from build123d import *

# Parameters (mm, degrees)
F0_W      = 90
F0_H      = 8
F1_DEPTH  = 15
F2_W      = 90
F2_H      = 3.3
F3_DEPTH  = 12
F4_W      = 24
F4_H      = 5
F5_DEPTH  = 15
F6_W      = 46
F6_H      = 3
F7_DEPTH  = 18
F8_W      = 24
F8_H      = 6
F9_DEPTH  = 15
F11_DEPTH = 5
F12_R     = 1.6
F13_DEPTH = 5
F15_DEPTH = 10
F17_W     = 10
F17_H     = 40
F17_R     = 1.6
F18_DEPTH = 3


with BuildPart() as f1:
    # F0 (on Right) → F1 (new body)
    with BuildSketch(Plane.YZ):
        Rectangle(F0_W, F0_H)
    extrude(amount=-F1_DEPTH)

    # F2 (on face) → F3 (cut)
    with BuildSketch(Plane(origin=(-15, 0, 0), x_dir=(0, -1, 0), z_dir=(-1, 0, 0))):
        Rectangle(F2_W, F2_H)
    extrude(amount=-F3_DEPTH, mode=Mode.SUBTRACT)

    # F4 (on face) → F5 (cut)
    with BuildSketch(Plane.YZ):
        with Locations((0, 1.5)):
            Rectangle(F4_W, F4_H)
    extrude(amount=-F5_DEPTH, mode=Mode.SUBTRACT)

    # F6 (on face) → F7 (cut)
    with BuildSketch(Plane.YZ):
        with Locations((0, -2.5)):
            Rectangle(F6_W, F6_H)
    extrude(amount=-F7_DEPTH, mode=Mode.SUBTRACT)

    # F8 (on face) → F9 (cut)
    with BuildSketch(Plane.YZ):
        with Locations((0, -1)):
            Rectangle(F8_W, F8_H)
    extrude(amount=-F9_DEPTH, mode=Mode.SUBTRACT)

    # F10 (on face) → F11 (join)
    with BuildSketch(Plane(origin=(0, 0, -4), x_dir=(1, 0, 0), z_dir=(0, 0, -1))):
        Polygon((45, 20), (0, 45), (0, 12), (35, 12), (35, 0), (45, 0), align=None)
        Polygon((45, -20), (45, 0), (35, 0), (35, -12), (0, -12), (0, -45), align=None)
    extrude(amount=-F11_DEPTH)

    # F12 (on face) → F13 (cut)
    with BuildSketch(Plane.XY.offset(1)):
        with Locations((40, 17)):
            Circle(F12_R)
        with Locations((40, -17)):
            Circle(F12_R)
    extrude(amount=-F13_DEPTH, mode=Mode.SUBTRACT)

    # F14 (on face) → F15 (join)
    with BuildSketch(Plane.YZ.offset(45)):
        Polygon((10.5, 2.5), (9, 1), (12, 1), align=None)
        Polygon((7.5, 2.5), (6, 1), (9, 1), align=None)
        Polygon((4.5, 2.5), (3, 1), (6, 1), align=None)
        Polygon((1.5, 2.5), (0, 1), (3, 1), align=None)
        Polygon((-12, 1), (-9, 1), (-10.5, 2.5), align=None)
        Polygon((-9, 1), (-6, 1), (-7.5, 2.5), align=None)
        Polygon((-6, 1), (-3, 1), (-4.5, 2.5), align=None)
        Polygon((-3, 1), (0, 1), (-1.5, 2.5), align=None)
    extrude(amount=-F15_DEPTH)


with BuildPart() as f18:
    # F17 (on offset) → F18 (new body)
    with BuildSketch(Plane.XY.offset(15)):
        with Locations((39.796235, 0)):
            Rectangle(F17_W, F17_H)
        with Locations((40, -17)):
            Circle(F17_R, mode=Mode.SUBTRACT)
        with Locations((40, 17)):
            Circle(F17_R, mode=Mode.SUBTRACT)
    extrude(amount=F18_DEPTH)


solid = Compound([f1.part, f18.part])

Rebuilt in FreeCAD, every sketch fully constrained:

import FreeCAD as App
import Part
import Sketcher

doc = App.newDocument("Part")
body = doc.addObject("PartDesign::Body", "Body")
body.AllowCompound = True

sketch1 = body.newObject("Sketcher::SketchObject", "Sketch")
sketch1.AttachmentSupport = (doc.getObject("YZ_Plane"), [""])
sketch1.MapMode = "FlatFace"
sketch1.addGeometry(Part.LineSegment(App.Vector(-45, 4, 0), App.Vector(-45, -4, 0)), False)
sketch1.addGeometry(Part.LineSegment(App.Vector(-45, -4, 0), App.Vector(45, -4, 0)), False)
sketch1.addGeometry(Part.LineSegment(App.Vector(45, -4, 0), App.Vector(45, 4, 0)), False)
sketch1.addGeometry(Part.LineSegment(App.Vector(45, 4, 0), App.Vector(-45, 4, 0)), False)
sketch1.addConstraint(Sketcher.Constraint("Coincident", 0, 2, 1, 1))
sketch1.addConstraint(Sketcher.Constraint("Coincident", 1, 2, 2, 1))
sketch1.addConstraint(Sketcher.Constraint("Coincident", 2, 2, 3, 1))
sketch1.addConstraint(Sketcher.Constraint("Coincident", 3, 2, 0, 1))
sketch1.addConstraint(Sketcher.Constraint("Vertical", 0))
sketch1.addConstraint(Sketcher.Constraint("Horizontal", 1))
sketch1.addConstraint(Sketcher.Constraint("Vertical", 2))
sketch1.addConstraint(Sketcher.Constraint("Horizontal", 3))
sketch1.addConstraint(Sketcher.Constraint("Symmetric", 0, 2, 2, 2, -1, 1))
sketch1.addConstraint(Sketcher.Constraint("DistanceX", 1, 1, 1, 2, 90.0))
sketch1.addConstraint(Sketcher.Constraint("DistanceY", 0, 2, 0, 1, 8.0))
pad1 = body.newObject("PartDesign::Pad", "Pad")
pad1.Profile = sketch1
pad1.Length = 15
pad1.Reversed = True

sketch2 = body.newObject("Sketcher::SketchObject", "Sketch001")
sketch2.AttachmentSupport = (doc.getObject("YZ_Plane"), [""])
sketch2.MapMode = "FlatFace"
sketch2.AttachmentOffset = App.Placement(App.Vector(0, 0, -15), App.Rotation())
sketch2.addGeometry(Part.LineSegment(App.Vector(45, 1.6, 0), App.Vector(45, -1.6, 0)), False)
sketch2.addGeometry(Part.LineSegment(App.Vector(45, -1.6, 0), App.Vector(-45, -1.6, 0)), False)
sketch2.addGeometry(Part.LineSegment(App.Vector(-45, -1.6, 0), App.Vector(-45, 1.6, 0)), False)
sketch2.addGeometry(Part.LineSegment(App.Vector(-45, 1.6, 0), App.Vector(45, 1.6, 0)), False)
sketch2.addConstraint(Sketcher.Constraint("Coincident", 0, 2, 1, 1))
sketch2.addConstraint(Sketcher.Constraint("Coincident", 1, 2, 2, 1))
sketch2.addConstraint(Sketcher.Constraint("Coincident", 2, 2, 3, 1))
sketch2.addConstraint(Sketcher.Constraint("Coincident", 3, 2, 0, 1))
sketch2.addConstraint(Sketcher.Constraint("Vertical", 0))
sketch2.addConstraint(Sketcher.Constraint("Horizontal", 1))
sketch2.addConstraint(Sketcher.Constraint("Vertical", 2))
sketch2.addConstraint(Sketcher.Constraint("Horizontal", 3))
sketch2.addConstraint(Sketcher.Constraint("Symmetric", 0, 2, 2, 2, -1, 1))
sketch2.addConstraint(Sketcher.Constraint("DistanceX", 1, 2, 1, 1, 90.0))
sketch2.addConstraint(Sketcher.Constraint("DistanceY", 0, 2, 0, 1, 3.3))
pocket1 = body.newObject("PartDesign::Pocket", "Pocket")
pocket1.Profile = sketch2
pocket1.Length = 12
pocket1.Reversed = True

sketch3 = body.newObject("Sketcher::SketchObject", "Sketch002")
sketch3.AttachmentSupport = (doc.getObject("YZ_Plane"), [""])
sketch3.MapMode = "FlatFace"
sketch3.addGeometry(Part.LineSegment(App.Vector(-12, 4, 0), App.Vector(-12, -1, 0)), False)
sketch3.addGeometry(Part.LineSegment(App.Vector(-12, -1, 0), App.Vector(12, -1, 0)), False)
sketch3.addGeometry(Part.LineSegment(App.Vector(12, -1, 0), App.Vector(12, 4, 0)), False)
sketch3.addGeometry(Part.LineSegment(App.Vector(12, 4, 0), App.Vector(-12, 4, 0)), False)
sketch3.addConstraint(Sketcher.Constraint("Coincident", 0, 2, 1, 1))
sketch3.addConstraint(Sketcher.Constraint("Coincident", 1, 2, 2, 1))
sketch3.addConstraint(Sketcher.Constraint("Coincident", 2, 2, 3, 1))
sketch3.addConstraint(Sketcher.Constraint("Coincident", 3, 2, 0, 1))
sketch3.addConstraint(Sketcher.Constraint("Vertical", 0))
sketch3.addConstraint(Sketcher.Constraint("Horizontal", 1))
sketch3.addConstraint(Sketcher.Constraint("Vertical", 2))
sketch3.addConstraint(Sketcher.Constraint("Horizontal", 3))
sketch3.addConstraint(Sketcher.Constraint("DistanceX", 1, 1, 1, 2, 24.0))
sketch3.addConstraint(Sketcher.Constraint("DistanceY", 0, 2, 0, 1, 5.0))
sketch3.addConstraint(Sketcher.Constraint("DistanceX", 0, 2, -1, 1, 12.0))
sketch3.addConstraint(Sketcher.Constraint("DistanceY", 0, 2, -1, 1, 1.0))
pocket2 = body.newObject("PartDesign::Pocket", "Pocket001")
pocket2.Profile = sketch3
pocket2.Length = 15

sketch4 = body.newObject("Sketcher::SketchObject", "Sketch003")
sketch4.AttachmentSupport = (doc.getObject("YZ_Plane"), [""])
sketch4.MapMode = "FlatFace"
sketch4.addGeometry(Part.LineSegment(App.Vector(-23, -1, 0), App.Vector(-23, -4, 0)), False)
sketch4.addGeometry(Part.LineSegment(App.Vector(-23, -4, 0), App.Vector(23, -4, 0)), False)
sketch4.addGeometry(Part.LineSegment(App.Vector(23, -4, 0), App.Vector(23, -1, 0)), False)
sketch4.addGeometry(Part.LineSegment(App.Vector(23, -1, 0), App.Vector(-23, -1, 0)), False)
sketch4.addConstraint(Sketcher.Constraint("Coincident", 0, 2, 1, 1))
sketch4.addConstraint(Sketcher.Constraint("Coincident", 1, 2, 2, 1))
sketch4.addConstraint(Sketcher.Constraint("Coincident", 2, 2, 3, 1))
sketch4.addConstraint(Sketcher.Constraint("Coincident", 3, 2, 0, 1))
sketch4.addConstraint(Sketcher.Constraint("Vertical", 0))
sketch4.addConstraint(Sketcher.Constraint("Horizontal", 1))
sketch4.addConstraint(Sketcher.Constraint("Vertical", 2))
sketch4.addConstraint(Sketcher.Constraint("Horizontal", 3))
sketch4.addConstraint(Sketcher.Constraint("DistanceX", 1, 1, 1, 2, 46.0))
sketch4.addConstraint(Sketcher.Constraint("DistanceY", 0, 2, 0, 1, 3.0))
sketch4.addConstraint(Sketcher.Constraint("DistanceX", 0, 2, -1, 1, 23.0))
sketch4.addConstraint(Sketcher.Constraint("DistanceY", 0, 2, -1, 1, 4.0))
pocket3 = body.newObject("PartDesign::Pocket", "Pocket002")
pocket3.Profile = sketch4
pocket3.Length = 18

sketch5 = body.newObject("Sketcher::SketchObject", "Sketch004")
sketch5.AttachmentSupport = (doc.getObject("YZ_Plane"), [""])
sketch5.MapMode = "FlatFace"
sketch5.addGeometry(Part.LineSegment(App.Vector(-12, 2, 0), App.Vector(-12, -4, 0)), False)
sketch5.addGeometry(Part.LineSegment(App.Vector(-12, -4, 0), App.Vector(12, -4, 0)), False)
sketch5.addGeometry(Part.LineSegment(App.Vector(12, -4, 0), App.Vector(12, 2, 0)), False)
sketch5.addGeometry(Part.LineSegment(App.Vector(12, 2, 0), App.Vector(-12, 2, 0)), False)
sketch5.addConstraint(Sketcher.Constraint("Coincident", 0, 2, 1, 1))
sketch5.addConstraint(Sketcher.Constraint("Coincident", 1, 2, 2, 1))
sketch5.addConstraint(Sketcher.Constraint("Coincident", 2, 2, 3, 1))
sketch5.addConstraint(Sketcher.Constraint("Coincident", 3, 2, 0, 1))
sketch5.addConstraint(Sketcher.Constraint("Vertical", 0))
sketch5.addConstraint(Sketcher.Constraint("Horizontal", 1))
sketch5.addConstraint(Sketcher.Constraint("Vertical", 2))
sketch5.addConstraint(Sketcher.Constraint("Horizontal", 3))
sketch5.addConstraint(Sketcher.Constraint("DistanceX", 1, 1, 1, 2, 24.0))
sketch5.addConstraint(Sketcher.Constraint("DistanceY", 0, 2, 0, 1, 6.0))
sketch5.addConstraint(Sketcher.Constraint("DistanceX", 0, 2, -1, 1, 12.0))
sketch5.addConstraint(Sketcher.Constraint("DistanceY", 0, 2, -1, 1, 4.0))
pocket4 = body.newObject("PartDesign::Pocket", "Pocket003")
pocket4.Profile = sketch5
pocket4.Length = 15

sketch6 = body.newObject("Sketcher::SketchObject", "Sketch005")
sketch6.AttachmentSupport = (doc.getObject("XY_Plane"), [""])
sketch6.MapMode = "FlatFace"
sketch6.AttachmentOffset = App.Placement(App.Vector(0, 0, -4), App.Rotation())
sketch6.addGeometry(Part.LineSegment(App.Vector(45, -20, 0), App.Vector(0, -45, 0)), False)
sketch6.addGeometry(Part.LineSegment(App.Vector(0, -45, 0), App.Vector(0, -12, 0)), False)
sketch6.addGeometry(Part.LineSegment(App.Vector(0, -12, 0), App.Vector(35, -12, 0)), False)
sketch6.addGeometry(Part.LineSegment(App.Vector(35, -12, 0), App.Vector(35, 12, 0)), False)
sketch6.addGeometry(Part.LineSegment(App.Vector(35, 12, 0), App.Vector(0, 12, 0)), False)
sketch6.addGeometry(Part.LineSegment(App.Vector(0, 12, 0), App.Vector(0, 45, 0)), False)
sketch6.addGeometry(Part.LineSegment(App.Vector(0, 45, 0), App.Vector(45, 20, 0)), False)
sketch6.addGeometry(Part.LineSegment(App.Vector(45, 20, 0), App.Vector(45, -20, 0)), False)
sketch6.addConstraint(Sketcher.Constraint("Coincident", 0, 2, 1, 1))
sketch6.addConstraint(Sketcher.Constraint("Coincident", 1, 2, 2, 1))
sketch6.addConstraint(Sketcher.Constraint("Coincident", 2, 2, 3, 1))
sketch6.addConstraint(Sketcher.Constraint("Coincident", 3, 2, 4, 1))
sketch6.addConstraint(Sketcher.Constraint("Coincident", 4, 2, 5, 1))
sketch6.addConstraint(Sketcher.Constraint("Coincident", 5, 2, 6, 1))
sketch6.addConstraint(Sketcher.Constraint("Coincident", 6, 2, 7, 1))
sketch6.addConstraint(Sketcher.Constraint("Coincident", 7, 2, 0, 1))
sketch6.addConstraint(Sketcher.Constraint("Vertical", 1))
sketch6.addConstraint(Sketcher.Constraint("Horizontal", 2))
sketch6.addConstraint(Sketcher.Constraint("Vertical", 3))
sketch6.addConstraint(Sketcher.Constraint("Horizontal", 4))
sketch6.addConstraint(Sketcher.Constraint("Vertical", 5))
sketch6.addConstraint(Sketcher.Constraint("Vertical", 7))
sketch6.addConstraint(Sketcher.Constraint("Symmetric", 1, 2, 4, 2, -1, 1))
sketch6.addConstraint(Sketcher.Constraint("Symmetric", 0, 2, 5, 2, -1))
sketch6.addConstraint(Sketcher.Constraint("Equal", 0, 6))
sketch6.addConstraint(Sketcher.Constraint("DistanceX", 2, 1, 2, 2, 35.0))
sketch6.addConstraint(Sketcher.Constraint("DistanceY", 1, 1, 1, 2, 33.0))
sketch6.addConstraint(Sketcher.Constraint("DistanceY", 3, 1, 3, 2, 24.0))
sketch6.addConstraint(Sketcher.Constraint("DistanceY", 7, 2, 7, 1, 40.0))
sketch6.addConstraint(Sketcher.Constraint("DistanceX", -1, 1, 6, 2, 45.0))
pad2 = body.newObject("PartDesign::Pad", "Pad001")
pad2.Profile = sketch6
pad2.Length = 5

sketch7 = body.newObject("Sketcher::SketchObject", "Sketch006")
sketch7.AttachmentSupport = (doc.getObject("XY_Plane"), [""])
sketch7.MapMode = "FlatFace"
sketch7.AttachmentOffset = App.Placement(App.Vector(0, 0, 1), App.Rotation())
sketch7.addGeometry(Part.Circle(App.Vector(40, 17, 0), App.Vector(0, 0, 1), 1.6), False)
sketch7.addGeometry(Part.Circle(App.Vector(40, -17, 0), App.Vector(0, 0, 1), 1.6), False)
sketch7.addConstraint(Sketcher.Constraint("Equal", 0, 1))
sketch7.addConstraint(Sketcher.Constraint("Symmetric", 0, 3, 1, 3, -1))
sketch7.addConstraint(Sketcher.Constraint("Diameter", 0, 3.2))
sketch7.addConstraint(Sketcher.Constraint("DistanceX", -1, 1, 0, 3, 40.0))
sketch7.addConstraint(Sketcher.Constraint("DistanceY", -1, 1, 0, 3, 17.0))
pocket5 = body.newObject("PartDesign::Pocket", "Pocket004")
pocket5.Profile = sketch7
pocket5.Length = 5

sketch8 = body.newObject("Sketcher::SketchObject", "Sketch007")
sketch8.AttachmentSupport = (doc.getObject("YZ_Plane"), [""])
sketch8.MapMode = "FlatFace"
sketch8.AttachmentOffset = App.Placement(App.Vector(0, 0, 45), App.Rotation())
sketch8.addGeometry(Part.LineSegment(App.Vector(10.5, 2.5, 0), App.Vector(9, 1, 0)), False)
sketch8.addGeometry(Part.LineSegment(App.Vector(9, 1, 0), App.Vector(12, 1, 0)), False)
sketch8.addGeometry(Part.LineSegment(App.Vector(12, 1, 0), App.Vector(10.5, 2.5, 0)), False)
sketch8.addGeometry(Part.LineSegment(App.Vector(7.5, 2.5, 0), App.Vector(6, 1, 0)), False)
sketch8.addGeometry(Part.LineSegment(App.Vector(6, 1, 0), App.Vector(9, 1, 0)), False)
sketch8.addGeometry(Part.LineSegment(App.Vector(9, 1, 0), App.Vector(7.5, 2.5, 0)), False)
sketch8.addGeometry(Part.LineSegment(App.Vector(4.5, 2.5, 0), App.Vector(3, 1, 0)), False)
sketch8.addGeometry(Part.LineSegment(App.Vector(3, 1, 0), App.Vector(6, 1, 0)), False)
sketch8.addGeometry(Part.LineSegment(App.Vector(6, 1, 0), App.Vector(4.5, 2.5, 0)), False)
sketch8.addGeometry(Part.LineSegment(App.Vector(1.5, 2.5, 0), App.Vector(0, 1, 0)), False)
sketch8.addGeometry(Part.LineSegment(App.Vector(0, 1, 0), App.Vector(3, 1, 0)), False)
sketch8.addGeometry(Part.LineSegment(App.Vector(3, 1, 0), App.Vector(1.5, 2.5, 0)), False)
sketch8.addGeometry(Part.LineSegment(App.Vector(-12, 1, 0), App.Vector(-9, 1, 0)), False)
sketch8.addGeometry(Part.LineSegment(App.Vector(-9, 1, 0), App.Vector(-10.5, 2.5, 0)), False)
sketch8.addGeometry(Part.LineSegment(App.Vector(-10.5, 2.5, 0), App.Vector(-12, 1, 0)), False)
sketch8.addGeometry(Part.LineSegment(App.Vector(-9, 1, 0), App.Vector(-6, 1, 0)), False)
sketch8.addGeometry(Part.LineSegment(App.Vector(-6, 1, 0), App.Vector(-7.5, 2.5, 0)), False)
sketch8.addGeometry(Part.LineSegment(App.Vector(-7.5, 2.5, 0), App.Vector(-9, 1, 0)), False)
sketch8.addGeometry(Part.LineSegment(App.Vector(-6, 1, 0), App.Vector(-3, 1, 0)), False)
sketch8.addGeometry(Part.LineSegment(App.Vector(-3, 1, 0), App.Vector(-4.5, 2.5, 0)), False)
sketch8.addGeometry(Part.LineSegment(App.Vector(-4.5, 2.5, 0), App.Vector(-6, 1, 0)), False)
sketch8.addGeometry(Part.LineSegment(App.Vector(-3, 1, 0), App.Vector(0, 1, 0)), False)
sketch8.addGeometry(Part.LineSegment(App.Vector(0, 1, 0), App.Vector(-1.5, 2.5, 0)), False)
sketch8.addGeometry(Part.LineSegment(App.Vector(-1.5, 2.5, 0), App.Vector(-3, 1, 0)), False)
sketch8.addConstraint(Sketcher.Constraint("Coincident", 0, 2, 1, 1))
sketch8.addConstraint(Sketcher.Constraint("Coincident", 1, 2, 2, 1))
sketch8.addConstraint(Sketcher.Constraint("Coincident", 2, 2, 0, 1))
sketch8.addConstraint(Sketcher.Constraint("Coincident", 3, 2, 4, 1))
sketch8.addConstraint(Sketcher.Constraint("Coincident", 4, 2, 5, 1))
sketch8.addConstraint(Sketcher.Constraint("Coincident", 5, 2, 3, 1))
sketch8.addConstraint(Sketcher.Constraint("Coincident", 6, 2, 7, 1))
sketch8.addConstraint(Sketcher.Constraint("Coincident", 7, 2, 8, 1))
sketch8.addConstraint(Sketcher.Constraint("Coincident", 8, 2, 6, 1))
sketch8.addConstraint(Sketcher.Constraint("Coincident", 9, 2, 10, 1))
sketch8.addConstraint(Sketcher.Constraint("Coincident", 10, 2, 11, 1))
sketch8.addConstraint(Sketcher.Constraint("Coincident", 11, 2, 9, 1))
sketch8.addConstraint(Sketcher.Constraint("Coincident", 12, 2, 13, 1))
sketch8.addConstraint(Sketcher.Constraint("Coincident", 13, 2, 14, 1))
sketch8.addConstraint(Sketcher.Constraint("Coincident", 14, 2, 12, 1))
sketch8.addConstraint(Sketcher.Constraint("Coincident", 15, 2, 16, 1))
sketch8.addConstraint(Sketcher.Constraint("Coincident", 16, 2, 17, 1))
sketch8.addConstraint(Sketcher.Constraint("Coincident", 17, 2, 15, 1))
sketch8.addConstraint(Sketcher.Constraint("Coincident", 18, 2, 19, 1))
sketch8.addConstraint(Sketcher.Constraint("Coincident", 19, 2, 20, 1))
sketch8.addConstraint(Sketcher.Constraint("Coincident", 20, 2, 18, 1))
sketch8.addConstraint(Sketcher.Constraint("Coincident", 21, 2, 22, 1))
sketch8.addConstraint(Sketcher.Constraint("Coincident", 22, 2, 23, 1))
sketch8.addConstraint(Sketcher.Constraint("Coincident", 23, 2, 21, 1))
sketch8.addConstraint(Sketcher.Constraint("Horizontal", 1))
sketch8.addConstraint(Sketcher.Constraint("Horizontal", 4))
sketch8.addConstraint(Sketcher.Constraint("Horizontal", 7))
sketch8.addConstraint(Sketcher.Constraint("Horizontal", 10))
sketch8.addConstraint(Sketcher.Constraint("Horizontal", 12))
sketch8.addConstraint(Sketcher.Constraint("Horizontal", 15))
sketch8.addConstraint(Sketcher.Constraint("Horizontal", 18))
sketch8.addConstraint(Sketcher.Constraint("Horizontal", 21))
sketch8.addConstraint(Sketcher.Constraint("Coincident", 4, 2, 0, 2))
sketch8.addConstraint(Sketcher.Constraint("Coincident", 7, 2, 3, 2))
sketch8.addConstraint(Sketcher.Constraint("Coincident", 10, 2, 6, 2))
sketch8.addConstraint(Sketcher.Constraint("Coincident", 17, 2, 12, 2))
sketch8.addConstraint(Sketcher.Constraint("Coincident", 20, 2, 15, 2))
sketch8.addConstraint(Sketcher.Constraint("Coincident", 21, 2, 9, 2))
sketch8.addConstraint(Sketcher.Constraint("Coincident", 23, 2, 18, 2))
sketch8.addConstraint(Sketcher.Constraint("Symmetric", 2, 2, 13, 2, -2))
sketch8.addConstraint(Sketcher.Constraint("Symmetric", 5, 2, 16, 2, -2))
sketch8.addConstraint(Sketcher.Constraint("Symmetric", 8, 2, 19, 2, -2))
sketch8.addConstraint(Sketcher.Constraint("Symmetric", 11, 2, 22, 2, -2))
sketch8.addConstraint(Sketcher.Constraint("PointOnObject", 9, 2, -2))
sketch8.addConstraint(Sketcher.Constraint("Perpendicular", 0, 2))
sketch8.addConstraint(Sketcher.Constraint("Perpendicular", 2, 3))
sketch8.addConstraint(Sketcher.Constraint("Perpendicular", 3, 5))
sketch8.addConstraint(Sketcher.Constraint("Perpendicular", 5, 6))
sketch8.addConstraint(Sketcher.Constraint("Perpendicular", 6, 8))
sketch8.addConstraint(Sketcher.Constraint("Perpendicular", 8, 9))
sketch8.addConstraint(Sketcher.Constraint("Perpendicular", 9, 11))
sketch8.addConstraint(Sketcher.Constraint("Parallel", 11, 13))
sketch8.addConstraint(Sketcher.Constraint("Perpendicular", 13, 14))
sketch8.addConstraint(Sketcher.Constraint("Perpendicular", 14, 16))
sketch8.addConstraint(Sketcher.Constraint("Perpendicular", 17, 19))
sketch8.addConstraint(Sketcher.Constraint("Perpendicular", 20, 22))
sketch8.addConstraint(Sketcher.Constraint("Horizontal", 2, 2, 5, 2))
sketch8.addConstraint(Sketcher.Constraint("Horizontal", 5, 2, 8, 2))
sketch8.addConstraint(Sketcher.Constraint("Horizontal", 8, 2, 11, 2))
sketch8.addConstraint(Sketcher.Constraint("DistanceX", 1, 1, 1, 2, 3.0))
sketch8.addConstraint(Sketcher.Constraint("DistanceY", -1, 1, 0, 2, 1.0))
pad3 = body.newObject("PartDesign::Pad", "Pad002")
pad3.Profile = sketch8
pad3.Length = 10
pad3.Reversed = True
body2 = doc.addObject("PartDesign::Body", "Body001")

sketch9 = body2.newObject("Sketcher::SketchObject", "Sketch008")
sketch9.AttachmentSupport = (doc.getObject("XY_Plane001"), [""])
sketch9.MapMode = "FlatFace"
sketch9.AttachmentOffset = App.Placement(App.Vector(0, 0, 15), App.Rotation())
sketch9.addGeometry(Part.LineSegment(App.Vector(34.8, 20, 0), App.Vector(34.8, -20, 0)), False)
sketch9.addGeometry(Part.LineSegment(App.Vector(34.8, -20, 0), App.Vector(44.8, -20, 0)), False)
sketch9.addGeometry(Part.LineSegment(App.Vector(44.8, -20, 0), App.Vector(44.8, 20, 0)), False)
sketch9.addGeometry(Part.LineSegment(App.Vector(44.8, 20, 0), App.Vector(34.8, 20, 0)), False)
sketch9.addGeometry(Part.Circle(App.Vector(40, -17, 0), App.Vector(0, 0, 1), 1.6), False)
sketch9.addGeometry(Part.Circle(App.Vector(40, 17, 0), App.Vector(0, 0, 1), 1.6), False)
sketch9.addConstraint(Sketcher.Constraint("Coincident", 0, 2, 1, 1))
sketch9.addConstraint(Sketcher.Constraint("Coincident", 1, 2, 2, 1))
sketch9.addConstraint(Sketcher.Constraint("Coincident", 2, 2, 3, 1))
sketch9.addConstraint(Sketcher.Constraint("Coincident", 3, 2, 0, 1))
sketch9.addConstraint(Sketcher.Constraint("Vertical", 0))
sketch9.addConstraint(Sketcher.Constraint("Horizontal", 1))
sketch9.addConstraint(Sketcher.Constraint("Vertical", 2))
sketch9.addConstraint(Sketcher.Constraint("Horizontal", 3))
sketch9.addConstraint(Sketcher.Constraint("Equal", 4, 5))
sketch9.addConstraint(Sketcher.Constraint("Symmetric", 4, 3, 5, 3, -1))
sketch9.addConstraint(Sketcher.Constraint("Diameter", 4, 3.2))
sketch9.addConstraint(Sketcher.Constraint("DistanceX", 1, 1, 1, 2, 10.0))
sketch9.addConstraint(Sketcher.Constraint("DistanceY", 0, 2, 0, 1, 40.0))
sketch9.addConstraint(Sketcher.Constraint("DistanceX", -1, 1, 4, 3, 40.0))
sketch9.addConstraint(Sketcher.Constraint("DistanceY", 4, 3, -1, 1, 17.0))
sketch9.addConstraint(Sketcher.Constraint("DistanceY", 0, 2, -1, 1, 20.0))
sketch9.addConstraint(Sketcher.Constraint("DistanceX", -1, 1, 0, 2, 34.796235))
pad4 = body2.newObject("PartDesign::Pad", "Pad003")
pad4.Profile = sketch9
pad4.Length = 3

doc.recompute()
